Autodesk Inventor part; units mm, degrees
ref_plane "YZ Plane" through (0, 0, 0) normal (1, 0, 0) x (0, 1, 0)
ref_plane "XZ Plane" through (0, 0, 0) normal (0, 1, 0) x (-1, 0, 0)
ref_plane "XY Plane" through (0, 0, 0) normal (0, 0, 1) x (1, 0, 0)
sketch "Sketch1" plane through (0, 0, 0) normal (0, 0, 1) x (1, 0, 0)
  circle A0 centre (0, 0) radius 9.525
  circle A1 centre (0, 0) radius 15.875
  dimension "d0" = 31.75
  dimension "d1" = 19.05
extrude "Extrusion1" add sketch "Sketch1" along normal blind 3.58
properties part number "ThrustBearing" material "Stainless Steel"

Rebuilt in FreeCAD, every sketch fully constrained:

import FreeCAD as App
import Part
import Sketcher
from FreeCAD import Vector
Q = App.Units.Quantity

doc = App.newDocument("Part")
params = doc.addObject("Spreadsheet::Sheet", "Params")
for row, (alias, value) in enumerate([
    ("sketch1_diameter", "1.25 in"),
    ("sketch1_diameter2", "0.75 in"),
    ("pad1_length", "3.58 mm"),
], start=1):
    params.set(f"A{row}", alias)
    params.set(f"B{row}", "=" + value)
    params.setAlias(f"B{row}", alias)

body = doc.addObject("PartDesign::Body", "Body")

sketch1 = body.newObject("Sketcher::SketchObject", "Sketch")
sketch1.AttachmentSupport = (doc.getObject("XY_Plane"), [""])
sketch1.MapMode = "FlatFace"
sketch1.addGeometry([
    Part.Circle(Vector(0, 0, 0), Vector(0, 0, 1), 16),
    Part.Circle(Vector(0, 0, 0), Vector(0, 0, 1), 10),
], False)
sketch1.addConstraint([
    Sketcher.Constraint("Coincident", 0, 3, -1, 1),
    Sketcher.Constraint("Coincident", 1, 3, -1, 1),
    Sketcher.Constraint("Diameter", 0, Q("1.25 in")),
    Sketcher.Constraint("Diameter", 1, Q("0.75 in")),
])
sketch1.setExpression("Constraints[2]", "Params.sketch1_diameter")
sketch1.setExpression("Constraints[3]", "Params.sketch1_diameter2")
pad1 = body.newObject("PartDesign::Pad", "Pad")
pad1.Profile = sketch1
pad1.setExpression("Length", "Params.pad1_length")

doc.recompute()
